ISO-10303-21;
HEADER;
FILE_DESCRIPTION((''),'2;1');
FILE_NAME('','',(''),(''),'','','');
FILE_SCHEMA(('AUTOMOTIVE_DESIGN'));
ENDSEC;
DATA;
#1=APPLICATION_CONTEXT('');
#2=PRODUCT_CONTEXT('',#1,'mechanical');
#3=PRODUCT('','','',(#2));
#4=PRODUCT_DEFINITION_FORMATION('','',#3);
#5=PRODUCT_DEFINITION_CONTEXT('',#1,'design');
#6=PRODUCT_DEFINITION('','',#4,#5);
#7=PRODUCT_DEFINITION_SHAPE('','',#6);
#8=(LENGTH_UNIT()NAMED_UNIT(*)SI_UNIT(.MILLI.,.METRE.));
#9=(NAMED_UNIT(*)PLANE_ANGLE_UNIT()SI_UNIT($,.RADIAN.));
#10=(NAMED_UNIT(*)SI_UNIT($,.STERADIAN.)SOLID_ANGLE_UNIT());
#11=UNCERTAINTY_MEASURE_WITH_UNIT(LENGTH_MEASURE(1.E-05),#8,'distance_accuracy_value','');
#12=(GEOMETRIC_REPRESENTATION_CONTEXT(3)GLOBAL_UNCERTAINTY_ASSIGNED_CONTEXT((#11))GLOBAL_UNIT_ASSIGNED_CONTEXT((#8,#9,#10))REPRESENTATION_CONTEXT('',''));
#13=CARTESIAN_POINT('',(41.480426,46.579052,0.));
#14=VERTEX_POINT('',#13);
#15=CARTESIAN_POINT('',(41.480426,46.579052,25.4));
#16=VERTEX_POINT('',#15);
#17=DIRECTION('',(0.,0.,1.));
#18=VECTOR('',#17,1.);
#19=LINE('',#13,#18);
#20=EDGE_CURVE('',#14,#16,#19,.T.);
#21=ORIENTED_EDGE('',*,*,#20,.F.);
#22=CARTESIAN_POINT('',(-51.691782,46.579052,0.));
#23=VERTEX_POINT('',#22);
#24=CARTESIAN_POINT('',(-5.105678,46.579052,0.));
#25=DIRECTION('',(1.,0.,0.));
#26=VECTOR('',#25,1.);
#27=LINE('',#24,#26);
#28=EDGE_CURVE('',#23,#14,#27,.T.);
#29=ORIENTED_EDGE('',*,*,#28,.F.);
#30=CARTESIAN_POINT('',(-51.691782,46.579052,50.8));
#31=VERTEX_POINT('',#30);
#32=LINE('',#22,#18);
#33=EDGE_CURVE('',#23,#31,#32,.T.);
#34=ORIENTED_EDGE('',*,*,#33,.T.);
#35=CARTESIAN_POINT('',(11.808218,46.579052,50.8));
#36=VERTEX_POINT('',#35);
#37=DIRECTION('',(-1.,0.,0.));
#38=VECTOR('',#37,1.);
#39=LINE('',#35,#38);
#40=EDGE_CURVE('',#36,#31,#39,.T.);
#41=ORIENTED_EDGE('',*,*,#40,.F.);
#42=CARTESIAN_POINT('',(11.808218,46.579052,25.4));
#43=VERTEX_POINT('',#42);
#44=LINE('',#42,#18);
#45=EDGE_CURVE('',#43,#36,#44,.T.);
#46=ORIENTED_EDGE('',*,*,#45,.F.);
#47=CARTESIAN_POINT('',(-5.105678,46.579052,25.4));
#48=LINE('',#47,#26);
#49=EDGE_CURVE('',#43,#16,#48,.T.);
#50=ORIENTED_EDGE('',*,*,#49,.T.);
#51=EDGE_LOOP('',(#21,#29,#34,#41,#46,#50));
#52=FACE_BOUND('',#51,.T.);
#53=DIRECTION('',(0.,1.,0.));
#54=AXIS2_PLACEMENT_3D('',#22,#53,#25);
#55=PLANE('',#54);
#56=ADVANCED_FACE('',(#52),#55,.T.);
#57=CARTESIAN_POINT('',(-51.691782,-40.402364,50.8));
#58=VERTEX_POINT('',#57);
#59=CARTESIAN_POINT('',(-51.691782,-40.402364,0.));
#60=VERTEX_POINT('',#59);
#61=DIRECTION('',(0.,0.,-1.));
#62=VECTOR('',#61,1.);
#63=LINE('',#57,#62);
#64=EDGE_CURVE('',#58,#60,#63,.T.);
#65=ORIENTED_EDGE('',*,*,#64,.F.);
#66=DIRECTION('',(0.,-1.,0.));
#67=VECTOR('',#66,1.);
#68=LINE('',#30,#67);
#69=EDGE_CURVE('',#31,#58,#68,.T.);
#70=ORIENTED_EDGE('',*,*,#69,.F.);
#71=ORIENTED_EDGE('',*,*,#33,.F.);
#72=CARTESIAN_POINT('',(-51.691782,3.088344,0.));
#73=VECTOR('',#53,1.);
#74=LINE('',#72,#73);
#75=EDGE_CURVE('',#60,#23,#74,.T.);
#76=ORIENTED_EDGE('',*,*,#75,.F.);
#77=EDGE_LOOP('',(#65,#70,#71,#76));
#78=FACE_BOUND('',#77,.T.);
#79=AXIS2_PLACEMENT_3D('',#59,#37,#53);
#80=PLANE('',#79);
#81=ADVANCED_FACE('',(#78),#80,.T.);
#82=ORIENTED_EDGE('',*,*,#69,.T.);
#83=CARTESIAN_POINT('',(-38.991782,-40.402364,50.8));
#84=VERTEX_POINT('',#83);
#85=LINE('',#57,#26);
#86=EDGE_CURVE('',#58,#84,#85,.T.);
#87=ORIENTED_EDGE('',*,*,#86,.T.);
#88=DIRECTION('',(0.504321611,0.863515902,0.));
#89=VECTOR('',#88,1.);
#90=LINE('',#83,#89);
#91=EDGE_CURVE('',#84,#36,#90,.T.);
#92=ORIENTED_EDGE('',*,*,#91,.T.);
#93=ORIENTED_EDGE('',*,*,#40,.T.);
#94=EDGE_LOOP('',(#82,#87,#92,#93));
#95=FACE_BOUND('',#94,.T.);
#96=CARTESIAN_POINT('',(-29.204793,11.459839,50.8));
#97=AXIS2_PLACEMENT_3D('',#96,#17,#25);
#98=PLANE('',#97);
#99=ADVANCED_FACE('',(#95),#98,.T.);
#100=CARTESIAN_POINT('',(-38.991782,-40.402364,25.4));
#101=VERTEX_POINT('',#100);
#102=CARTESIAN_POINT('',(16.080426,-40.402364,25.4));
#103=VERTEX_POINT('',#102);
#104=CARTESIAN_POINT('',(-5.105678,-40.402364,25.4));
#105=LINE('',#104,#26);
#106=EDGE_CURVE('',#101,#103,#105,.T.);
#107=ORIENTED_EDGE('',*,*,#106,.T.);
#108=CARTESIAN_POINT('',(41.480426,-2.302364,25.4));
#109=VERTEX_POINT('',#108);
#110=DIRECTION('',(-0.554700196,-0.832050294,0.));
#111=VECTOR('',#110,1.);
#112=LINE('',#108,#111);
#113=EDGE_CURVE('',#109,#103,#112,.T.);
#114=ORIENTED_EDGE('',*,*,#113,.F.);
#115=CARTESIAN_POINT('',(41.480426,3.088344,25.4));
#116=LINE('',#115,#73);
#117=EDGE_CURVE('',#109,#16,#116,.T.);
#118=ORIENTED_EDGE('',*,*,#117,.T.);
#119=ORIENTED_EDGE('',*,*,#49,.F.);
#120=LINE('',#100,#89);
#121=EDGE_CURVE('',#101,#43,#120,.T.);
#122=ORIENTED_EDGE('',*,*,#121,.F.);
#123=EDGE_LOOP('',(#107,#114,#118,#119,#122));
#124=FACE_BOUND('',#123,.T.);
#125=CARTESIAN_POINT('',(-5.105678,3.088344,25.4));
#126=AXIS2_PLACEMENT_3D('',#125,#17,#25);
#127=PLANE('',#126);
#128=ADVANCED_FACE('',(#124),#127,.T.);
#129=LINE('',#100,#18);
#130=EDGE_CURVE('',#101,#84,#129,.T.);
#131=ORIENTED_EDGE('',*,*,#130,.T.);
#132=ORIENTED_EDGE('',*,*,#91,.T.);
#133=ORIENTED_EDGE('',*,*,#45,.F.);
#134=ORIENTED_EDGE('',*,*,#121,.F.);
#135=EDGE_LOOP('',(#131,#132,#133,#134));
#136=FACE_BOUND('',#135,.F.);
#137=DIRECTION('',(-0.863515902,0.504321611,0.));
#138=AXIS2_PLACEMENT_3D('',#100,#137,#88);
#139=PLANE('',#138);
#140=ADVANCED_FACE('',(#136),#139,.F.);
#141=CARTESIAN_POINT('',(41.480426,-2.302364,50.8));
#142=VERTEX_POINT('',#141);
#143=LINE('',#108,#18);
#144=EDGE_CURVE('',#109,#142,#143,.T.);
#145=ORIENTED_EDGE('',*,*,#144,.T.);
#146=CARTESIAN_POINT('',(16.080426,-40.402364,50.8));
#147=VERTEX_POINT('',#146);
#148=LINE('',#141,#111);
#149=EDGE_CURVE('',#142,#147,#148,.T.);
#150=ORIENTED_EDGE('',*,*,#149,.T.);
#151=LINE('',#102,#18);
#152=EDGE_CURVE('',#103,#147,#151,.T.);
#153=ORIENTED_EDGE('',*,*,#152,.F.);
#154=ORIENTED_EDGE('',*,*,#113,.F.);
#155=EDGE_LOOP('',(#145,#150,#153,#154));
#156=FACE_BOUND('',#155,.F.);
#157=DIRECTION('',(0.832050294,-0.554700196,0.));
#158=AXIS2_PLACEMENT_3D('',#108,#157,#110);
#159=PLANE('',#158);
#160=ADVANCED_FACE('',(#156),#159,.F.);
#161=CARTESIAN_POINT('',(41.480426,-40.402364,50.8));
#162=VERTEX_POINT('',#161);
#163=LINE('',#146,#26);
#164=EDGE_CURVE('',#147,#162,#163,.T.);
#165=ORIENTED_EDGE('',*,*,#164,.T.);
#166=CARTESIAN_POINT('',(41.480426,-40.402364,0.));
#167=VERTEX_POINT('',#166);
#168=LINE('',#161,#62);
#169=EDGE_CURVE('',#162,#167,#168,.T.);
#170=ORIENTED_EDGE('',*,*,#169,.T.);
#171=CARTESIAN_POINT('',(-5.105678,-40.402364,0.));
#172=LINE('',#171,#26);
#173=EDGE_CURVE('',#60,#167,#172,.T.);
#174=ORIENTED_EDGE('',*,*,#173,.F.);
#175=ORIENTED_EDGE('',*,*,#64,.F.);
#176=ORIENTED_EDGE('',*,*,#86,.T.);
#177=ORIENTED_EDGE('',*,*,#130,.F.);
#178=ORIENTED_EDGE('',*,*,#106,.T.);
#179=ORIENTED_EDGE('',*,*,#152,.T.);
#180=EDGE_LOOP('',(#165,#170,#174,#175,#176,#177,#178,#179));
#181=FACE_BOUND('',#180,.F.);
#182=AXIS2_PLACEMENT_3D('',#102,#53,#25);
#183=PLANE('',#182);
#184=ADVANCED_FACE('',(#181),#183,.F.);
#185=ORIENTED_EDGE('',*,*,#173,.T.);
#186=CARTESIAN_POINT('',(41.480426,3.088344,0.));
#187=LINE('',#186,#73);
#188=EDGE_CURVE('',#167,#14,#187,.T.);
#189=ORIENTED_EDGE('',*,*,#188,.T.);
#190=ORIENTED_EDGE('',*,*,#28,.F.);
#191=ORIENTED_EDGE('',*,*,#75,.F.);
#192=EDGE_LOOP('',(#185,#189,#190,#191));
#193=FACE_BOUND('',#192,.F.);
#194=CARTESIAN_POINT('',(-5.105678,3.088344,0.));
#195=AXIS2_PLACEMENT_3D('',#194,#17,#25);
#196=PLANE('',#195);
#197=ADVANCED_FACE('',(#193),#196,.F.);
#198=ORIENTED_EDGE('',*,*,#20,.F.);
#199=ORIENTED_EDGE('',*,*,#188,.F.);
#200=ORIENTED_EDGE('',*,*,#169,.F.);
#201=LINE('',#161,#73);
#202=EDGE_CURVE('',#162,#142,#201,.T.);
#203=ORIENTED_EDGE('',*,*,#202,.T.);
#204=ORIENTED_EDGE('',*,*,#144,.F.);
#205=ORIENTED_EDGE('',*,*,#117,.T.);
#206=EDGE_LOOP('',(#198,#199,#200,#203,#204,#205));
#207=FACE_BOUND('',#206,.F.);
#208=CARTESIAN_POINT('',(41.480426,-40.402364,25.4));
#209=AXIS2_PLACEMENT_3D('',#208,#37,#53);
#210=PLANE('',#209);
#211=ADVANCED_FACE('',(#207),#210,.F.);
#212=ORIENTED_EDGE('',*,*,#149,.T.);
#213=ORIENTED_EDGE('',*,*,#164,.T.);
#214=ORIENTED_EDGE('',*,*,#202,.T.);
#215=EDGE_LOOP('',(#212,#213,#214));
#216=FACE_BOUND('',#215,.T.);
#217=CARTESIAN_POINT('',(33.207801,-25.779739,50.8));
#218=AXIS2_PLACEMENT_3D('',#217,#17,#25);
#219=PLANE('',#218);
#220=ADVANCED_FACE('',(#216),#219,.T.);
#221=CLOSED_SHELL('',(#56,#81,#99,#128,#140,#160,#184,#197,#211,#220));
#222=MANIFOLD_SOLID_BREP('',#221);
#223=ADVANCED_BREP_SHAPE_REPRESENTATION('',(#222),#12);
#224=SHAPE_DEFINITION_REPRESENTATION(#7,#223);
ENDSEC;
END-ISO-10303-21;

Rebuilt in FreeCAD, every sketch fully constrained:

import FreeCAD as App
import Part
import Sketcher
Q = App.Units.Quantity

doc = App.newDocument("Part")
body = doc.addObject("PartDesign::Body", "Body")

# Sketch on XY plane
sketch1 = body.newObject("Sketcher::SketchObject", "Sketch")
sketch1.AttachmentSupport = (doc.getObject("XY_Plane"), [""])
sketch1.MapMode = "FlatFace"
sketch1.addGeometry([
    Part.LineSegment(App.Vector(-52, 47, 0), App.Vector(-52, -40, 0)),
    Part.LineSegment(App.Vector(-52, -40, 0), App.Vector(41, -40, 0)),
    Part.LineSegment(App.Vector(41, -40, 0), App.Vector(41, 47, 0)),
    Part.LineSegment(App.Vector(41, 47, 0), App.Vector(-52, 47, 0)),
], False)
sketch1.addConstraint([
    Sketcher.Constraint("Coincident", 0, 2, 1, 1),
    Sketcher.Constraint("Coincident", 1, 2, 2, 1),
    Sketcher.Constraint("Coincident", 2, 2, 3, 1),
    Sketcher.Constraint("Coincident", 3, 2, 0, 1),
    Sketcher.Constraint("Vertical", 0),
    Sketcher.Constraint("Horizontal", 1),
    Sketcher.Constraint("Vertical", 2),
    Sketcher.Constraint("Horizontal", 3),
    Sketcher.Constraint("DistanceX", 1, 1, 1, 2, 93.172208),
    Sketcher.Constraint("DistanceY", 0, 2, 0, 1, 86.981416),
    Sketcher.Constraint("DistanceY", -1, 1, 2, 2, 46.579052),
    Sketcher.Constraint("DistanceX", 0, 2, -1, 1, 51.691782),
])
pad1 = body.newObject("PartDesign::Pad", "Pad")
pad1.Profile = sketch1
pad1.Length = Q("1 in")

# Sketch on XY plane
sketch2 = body.newObject("Sketcher::SketchObject", "Sketch001")
sketch2.AttachmentSupport = (doc.getObject("XY_Plane"), [""])
sketch2.MapMode = "FlatFace"
sketch2.AttachmentOffset = App.Placement(App.Vector(0, 0, 1 * 25.4), App.Rotation())
sketch2.addGeometry([
    Part.LineSegment(App.Vector(41, -2, 0), App.Vector(16, -40, 0)),  # 0
    Part.LineSegment(App.Vector(16, -40, 0), App.Vector(41, -40, 0)),  # 1
    Part.LineSegment(App.Vector(41, -40, 0), App.Vector(41, -2, 0)),  # 2
    Part.LineSegment(App.Vector(-52, -40, 0), App.Vector(-39, -40, 0)),  # 3
    Part.LineSegment(App.Vector(-39, -40, 0), App.Vector(12, 47, 0)),  # 4
    Part.LineSegment(App.Vector(12, 47, 0), App.Vector(-52, 47, 0)),  # 5
    Part.LineSegment(App.Vector(-52, 47, 0), App.Vector(-52, -40, 0)),  # 6
], False)
sketch2.addConstraint([
    Sketcher.Constraint("Coincident", 0, 2, 1, 1),
    Sketcher.Constraint("Coincident", 1, 2, 2, 1),
    Sketcher.Constraint("Coincident", 2, 2, 0, 1),
    Sketcher.Constraint("Coincident", 3, 2, 4, 1),
    Sketcher.Constraint("Coincident", 4, 2, 5, 1),
    Sketcher.Constraint("Coincident", 5, 2, 6, 1),
    Sketcher.Constraint("Coincident", 6, 2, 3, 1),
    Sketcher.Constraint("Horizontal", 1),
    Sketcher.Constraint("Vertical", 2),
    Sketcher.Constraint("Horizontal", 3),
    Sketcher.Constraint("Horizontal", 5),
    Sketcher.Constraint("Vertical", 6),
    Sketcher.Constraint("Horizontal", 1, 2, 3, 2),
    Sketcher.Constraint("DistanceX", 1, 1, 1, 2, Q("1 in")),
    Sketcher.Constraint("DistanceX", 3, 1, 3, 2, Q("0.5 in")),
    Sketcher.Constraint("DistanceX", 5, 2, 5, 1, Q("2.5 in")),
    Sketcher.Constraint("DistanceY", 2, 1, 2, 2, Q("1.5 in")),
    Sketcher.Constraint("DistanceY", 6, 2, 6, 1, 86.981416),
    Sketcher.Constraint("DistanceY", -1, 1, 4, 2, 46.579052),
    Sketcher.Constraint("DistanceX", 3, 2, 0, 2, 55.072208),
    Sketcher.Constraint("DistanceX", -1, 1, 0, 2, 16.080426),
])
pad2 = body.newObject("PartDesign::Pad", "Pad001")
pad2.Profile = sketch2
pad2.Length = Q("1 in")

doc.recompute()
